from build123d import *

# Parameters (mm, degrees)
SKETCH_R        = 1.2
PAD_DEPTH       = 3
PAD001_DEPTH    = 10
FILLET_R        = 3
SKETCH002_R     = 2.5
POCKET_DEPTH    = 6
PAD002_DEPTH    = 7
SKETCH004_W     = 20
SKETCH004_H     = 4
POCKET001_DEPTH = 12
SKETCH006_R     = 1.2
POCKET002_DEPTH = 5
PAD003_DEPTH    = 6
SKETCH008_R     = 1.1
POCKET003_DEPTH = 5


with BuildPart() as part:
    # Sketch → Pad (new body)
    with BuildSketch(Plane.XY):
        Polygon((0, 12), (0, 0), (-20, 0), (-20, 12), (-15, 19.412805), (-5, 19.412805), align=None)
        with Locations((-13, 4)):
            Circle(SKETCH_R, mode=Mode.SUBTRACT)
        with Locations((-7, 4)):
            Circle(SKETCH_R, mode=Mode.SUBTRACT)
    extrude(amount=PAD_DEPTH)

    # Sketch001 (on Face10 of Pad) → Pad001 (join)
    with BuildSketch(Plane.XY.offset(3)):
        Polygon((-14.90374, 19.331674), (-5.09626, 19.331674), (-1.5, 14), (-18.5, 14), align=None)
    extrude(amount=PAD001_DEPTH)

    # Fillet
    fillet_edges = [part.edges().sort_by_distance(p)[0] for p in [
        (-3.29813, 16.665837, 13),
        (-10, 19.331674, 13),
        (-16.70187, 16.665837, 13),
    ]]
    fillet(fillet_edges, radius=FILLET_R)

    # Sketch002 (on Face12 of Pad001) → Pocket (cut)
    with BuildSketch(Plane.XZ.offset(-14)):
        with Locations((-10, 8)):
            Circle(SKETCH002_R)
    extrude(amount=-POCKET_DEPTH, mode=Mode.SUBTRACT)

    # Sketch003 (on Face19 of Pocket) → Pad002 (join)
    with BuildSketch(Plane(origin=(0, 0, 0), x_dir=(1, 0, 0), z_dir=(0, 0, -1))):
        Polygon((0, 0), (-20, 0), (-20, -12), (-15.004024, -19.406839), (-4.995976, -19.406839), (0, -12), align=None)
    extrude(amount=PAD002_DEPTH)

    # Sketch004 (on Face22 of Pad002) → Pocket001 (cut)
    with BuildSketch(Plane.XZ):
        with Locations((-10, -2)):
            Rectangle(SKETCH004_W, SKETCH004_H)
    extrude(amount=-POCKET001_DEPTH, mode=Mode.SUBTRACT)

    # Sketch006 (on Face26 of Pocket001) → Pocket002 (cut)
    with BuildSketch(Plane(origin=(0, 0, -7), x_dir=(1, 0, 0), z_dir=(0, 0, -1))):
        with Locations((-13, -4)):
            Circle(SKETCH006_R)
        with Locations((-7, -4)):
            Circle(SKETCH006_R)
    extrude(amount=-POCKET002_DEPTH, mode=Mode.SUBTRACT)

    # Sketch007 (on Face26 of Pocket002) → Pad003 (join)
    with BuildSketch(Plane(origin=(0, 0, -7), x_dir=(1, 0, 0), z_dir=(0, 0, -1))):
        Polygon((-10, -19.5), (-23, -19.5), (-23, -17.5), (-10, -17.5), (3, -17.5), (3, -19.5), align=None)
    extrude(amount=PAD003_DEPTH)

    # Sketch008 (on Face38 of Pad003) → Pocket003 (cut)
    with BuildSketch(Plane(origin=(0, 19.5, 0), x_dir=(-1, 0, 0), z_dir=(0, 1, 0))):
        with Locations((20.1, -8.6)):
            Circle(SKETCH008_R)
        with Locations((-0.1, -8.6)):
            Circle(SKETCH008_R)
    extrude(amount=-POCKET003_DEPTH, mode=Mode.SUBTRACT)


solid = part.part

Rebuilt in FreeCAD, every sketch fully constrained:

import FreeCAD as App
import Part
import Sketcher
from FreeCAD import Vector
Q = App.Units.Quantity


def edges_at(feature, points):
    """Names of the edges that pass closest to the given points."""
    edges = feature.Shape.Edges
    near = lambda p: min(range(len(edges)), key=lambda i: edges[i].distToShape(Part.Vertex(*p))[0])
    return sorted({f"Edge{near(p) + 1}" for p in points})

doc = App.newDocument("Part")
body = doc.addObject("PartDesign::Body", "Body")

sketch1 = body.newObject("Sketcher::SketchObject", "Sketch")
sketch1.AttachmentSupport = (doc.getObject("XY_Plane"), [""])
sketch1.MapMode = "FlatFace"
sketch1.addGeometry([
    Part.LineSegment(Vector(0, 0, 0), Vector(0, 12, 0)),
    Part.LineSegment(Vector(0, 12, 0), Vector(-5, 19.4, 0)),
    Part.LineSegment(Vector(-5, 19.4, 0), Vector(-15, 19.4, 0)),
    Part.LineSegment(Vector(-15, 19.4, 0), Vector(-20, 12, 0)),
    Part.LineSegment(Vector(-20, 12, 0), Vector(-20, 0, 0)),
    Part.LineSegment(Vector(-20, 0, 0), Vector(0, 0, 0)),
    Part.Circle(Vector(-7, 4, 0), Vector(0, 0, 1), 1.2),
    Part.Circle(Vector(-13, 4, 0), Vector(0, 0, 1), 1.2),
], False)
sketch1.addConstraint([
    Sketcher.Constraint("Coincident", 0, 2, 1, 1),
    Sketcher.Constraint("Coincident", 1, 2, 2, 1),
    Sketcher.Constraint("Coincident", 2, 2, 3, 1),
    Sketcher.Constraint("Coincident", 3, 2, 4, 1),
    Sketcher.Constraint("Coincident", 4, 2, 5, 1),
    Sketcher.Constraint("Coincident", 5, 2, 0, 1),
    Sketcher.Constraint("Vertical", 0),
    Sketcher.Constraint("Horizontal", 2),
    Sketcher.Constraint("Vertical", 4),
    Sketcher.Constraint("Horizontal", 5),
    Sketcher.Constraint("Coincident", 5, 2, -1, 1),
    Sketcher.Constraint("Equal", 6, 7),
    Sketcher.Constraint("Horizontal", 6, 3, 7, 3),
    Sketcher.Constraint("Horizontal", 0, 2, 3, 2),
    Sketcher.Constraint("Equal", 1, 3),
    Sketcher.Constraint("Diameter", 6, 2.4),
    Sketcher.Constraint("DistanceX", 2, 2, 2, 1, 10.0),
    Sketcher.Constraint("DistanceX", 5, 1, 5, 2, 20.0),
    Sketcher.Constraint("DistanceY", 0, 1, 0, 2, 12.0),
    Sketcher.Constraint("Angle", 1, Q("123.999999 deg")),
    Sketcher.Constraint("DistanceX", 6, 3, -1, 1, 7.0),
    Sketcher.Constraint("DistanceY", -1, 1, 6, 3, 4.0),
    Sketcher.Constraint("DistanceX", 7, 3, -1, 1, 13.0),
])
pad1 = body.newObject("PartDesign::Pad", "Pad")
pad1.Profile = sketch1
pad1.Length = 3

sketch2 = body.newObject("Sketcher::SketchObject", "Sketch001")
sketch2.AttachmentSupport = (doc.getObject("XY_Plane"), [""])
sketch2.MapMode = "FlatFace"
sketch2.AttachmentOffset = App.Placement(Vector(0, 0, 3), App.Rotation())
sketch2.addGeometry([
    Part.LineSegment(Vector(-5, 19, 0), Vector(-15, 19, 0)),
    Part.LineSegment(Vector(-15, 19, 0), Vector(-18, 14, 0)),
    Part.LineSegment(Vector(-18, 14, 0), Vector(-2, 14, 0)),
    Part.LineSegment(Vector(-2, 14, 0), Vector(-5, 19, 0)),
], False)
sketch2.addConstraint([
    Sketcher.Constraint("Coincident", 0, 2, 1, 1),
    Sketcher.Constraint("Coincident", 1, 2, 2, 1),
    Sketcher.Constraint("Coincident", 2, 2, 3, 1),
    Sketcher.Constraint("Coincident", 3, 2, 0, 1),
    Sketcher.Constraint("Horizontal", 0),
    Sketcher.Constraint("Horizontal", 2),
    Sketcher.Constraint("Equal", 1, 3),
    Sketcher.Constraint("DistanceX", 2, 1, 2, 2, 17.0),
    Sketcher.Constraint("Angle", 1, Q("-124.000004 deg")),
    Sketcher.Constraint("DistanceY", -1, 1, 1, 2, 14.0),
    Sketcher.Constraint("DistanceX", 1, 2, -1, 1, 18.5),
    Sketcher.Constraint("DistanceX", 0, 2, 0, 1, 9.80748),
])
pad2 = body.newObject("PartDesign::Pad", "Pad001")
pad2.Profile = sketch2
pad2.Length = 10
doc.recompute()

fillet = body.newObject("PartDesign::Fillet", "Fillet")
fillet.Base = (pad2, edges_at(pad2, [(-3.298, 16.666, 13), (-10, 19.332, 13), (-16.702, 16.666, 13)]))
fillet.Radius = 3

sketch3 = body.newObject("Sketcher::SketchObject", "Sketch002")
sketch3.AttachmentSupport = (doc.getObject("XZ_Plane"), [""])
sketch3.MapMode = "FlatFace"
sketch3.AttachmentOffset = App.Placement(Vector(0, 0, -14), App.Rotation())
sketch3.addGeometry(Part.Circle(Vector(-10, 8, 0), Vector(0, 0, 1), 2.5), False)
sketch3.addConstraint([
    Sketcher.Constraint("Diameter", 0, 5.0),
    Sketcher.Constraint("DistanceX", 0, 3, -1, 1, 10.0),
    Sketcher.Constraint("DistanceY", -1, 1, 0, 3, 8.0),
])
pocket1 = body.newObject("PartDesign::Pocket", "Pocket")
pocket1.Profile = sketch3
pocket1.Length = 6

sketch4 = body.newObject("Sketcher::SketchObject", "Sketch003")
sketch4.AttachmentSupport = (doc.getObject("XY_Plane"), [""])
sketch4.MapMode = "FlatFace"
sketch4.addGeometry([
    Part.LineSegment(Vector(0, 0, 0), Vector(-20, 0, 0)),
    Part.LineSegment(Vector(-20, 0, 0), Vector(-20, 12, 0)),
    Part.LineSegment(Vector(-20, 12, 0), Vector(-15, 19, 0)),
    Part.LineSegment(Vector(-15, 19, 0), Vector(-5, 19, 0)),
    Part.LineSegment(Vector(-5, 19, 0), Vector(0, 12, 0)),
    Part.LineSegment(Vector(0, 12, 0), Vector(0, 0, 0)),
], False)
sketch4.addConstraint([
    Sketcher.Constraint("Coincident", 0, 2, 1, 1),
    Sketcher.Constraint("Coincident", 1, 2, 2, 1),
    Sketcher.Constraint("Coincident", 2, 2, 3, 1),
    Sketcher.Constraint("Coincident", 3, 2, 4, 1),
    Sketcher.Constraint("Coincident", 4, 2, 5, 1),
    Sketcher.Constraint("Coincident", 5, 2, 0, 1),
    Sketcher.Constraint("Horizontal", 0),
    Sketcher.Constraint("Vertical", 1),
    Sketcher.Constraint("Horizontal", 3),
    Sketcher.Constraint("Vertical", 5),
    Sketcher.Constraint("Coincident", 5, 2, -1, 1),
    Sketcher.Constraint("Horizontal", 1, 2, 4, 2),
    Sketcher.Constraint("Equal", 2, 4),
    Sketcher.Constraint("DistanceX", 0, 2, 0, 1, 20.0),
    Sketcher.Constraint("DistanceY", 1, 1, 1, 2, 12.0),
    Sketcher.Constraint("Angle", 2, Q("56 deg")),
    Sketcher.Constraint("DistanceX", 3, 1, 3, 2, 10.008048),
])
pad3 = body.newObject("PartDesign::Pad", "Pad002")
pad3.Profile = sketch4
pad3.Length = 7
pad3.Reversed = True

sketch5 = body.newObject("Sketcher::SketchObject", "Sketch004")
sketch5.AttachmentSupport = (doc.getObject("XZ_Plane"), [""])
sketch5.MapMode = "FlatFace"
sketch5.addGeometry([
    Part.LineSegment(Vector(-20, 0, 0), Vector(-20, -4, 0)),
    Part.LineSegment(Vector(-20, -4, 0), Vector(0, -4, 0)),
    Part.LineSegment(Vector(0, -4, 0), Vector(0, 0, 0)),
    Part.LineSegment(Vector(0, 0, 0), Vector(-20, 0, 0)),
], False)
sketch5.addConstraint([
    Sketcher.Constraint("Coincident", 0, 2, 1, 1),
    Sketcher.Constraint("Coincident", 1, 2, 2, 1),
    Sketcher.Constraint("Coincident", 2, 2, 3, 1),
    Sketcher.Constraint("Coincident", 3, 2, 0, 1),
    Sketcher.Constraint("Vertical", 0),
    Sketcher.Constraint("Horizontal", 1),
    Sketcher.Constraint("Vertical", 2),
    Sketcher.Constraint("Horizontal", 3),
    Sketcher.Constraint("Coincident", 2, 2, -1, 1),
    Sketcher.Constraint("DistanceX", 1, 1, 1, 2, 20.0),
    Sketcher.Constraint("DistanceY", 0, 2, 0, 1, 4.0),
])
pocket2 = body.newObject("PartDesign::Pocket", "Pocket001")
pocket2.Profile = sketch5
pocket2.Length = 12

sketch6 = body.newObject("Sketcher::SketchObject", "Sketch005")
sketch6.AttachmentSupport = (doc.getObject("XY_Plane"), [""])
sketch6.MapMode = "FlatFace"
sketch6.AttachmentOffset = App.Placement(Vector(0, 0, -7), App.Rotation())
sketch6.addGeometry([
    Part.Circle(Vector(-13, 4, 0), Vector(0, 0, 1), 1.2),
    Part.Circle(Vector(-7, 4, 0), Vector(0, 0, 1), 1.2),
], False)
sketch6.addConstraint([
    Sketcher.Constraint("Equal", 0, 1),
    Sketcher.Constraint("Horizontal", 0, 3, 1, 3),
    Sketcher.Constraint("Diameter", 0, 2.4),
    Sketcher.Constraint("DistanceX", 0, 3, -1, 1, 13.0),
    Sketcher.Constraint("DistanceY", -1, 1, 0, 3, 4.0),
    Sketcher.Constraint("DistanceX", 1, 3, -1, 1, 7.0),
])
pocket3 = body.newObject("PartDesign::Pocket", "Pocket002")
pocket3.Profile = sketch6
pocket3.Length = 5
pocket3.Reversed = True

sketch7 = body.newObject("Sketcher::SketchObject", "Sketch006")
sketch7.AttachmentSupport = (doc.getObject("XY_Plane"), [""])
sketch7.MapMode = "FlatFace"
sketch7.AttachmentOffset = App.Placement(Vector(0, 0, -7), App.Rotation())
sketch7.addGeometry([
    Part.LineSegment(Vector(-23, 19.5, 0), Vector(3, 19.5, 0)),
    Part.LineSegment(Vector(3, 19.5, 0), Vector(3, 17.5, 0)),
    Part.LineSegment(Vector(3, 17.5, 0), Vector(-23, 17.5, 0)),
    Part.LineSegment(Vector(-23, 17.5, 0), Vector(-23, 19.5, 0)),
], False)
sketch7.addConstraint([
    Sketcher.Constraint("Coincident", 0, 2, 1, 1),
    Sketcher.Constraint("Coincident", 1, 2, 2, 1),
    Sketcher.Constraint("Coincident", 2, 2, 3, 1),
    Sketcher.Constraint("Coincident", 3, 2, 0, 1),
    Sketcher.Constraint("Horizontal", 0),
    Sketcher.Constraint("Vertical", 1),
    Sketcher.Constraint("Horizontal", 2),
    Sketcher.Constraint("Vertical", 3),
    Sketcher.Constraint("DistanceX", 0, 1, 0, 2, 26.0),
    Sketcher.Constraint("DistanceY", 1, 2, 1, 1, 2.0),
    Sketcher.Constraint("DistanceX", -1, 1, 0, 2, 3.0),
    Sketcher.Constraint("DistanceY", -1, 1, 0, 2, 19.5),
])
pad4 = body.newObject("PartDesign::Pad", "Pad003")
pad4.Profile = sketch7
pad4.Length = 6
pad4.Reversed = True

sketch8 = body.newObject("Sketcher::SketchObject", "Sketch007")
sketch8.AttachmentSupport = (doc.getObject("XZ_Plane"), [""])
sketch8.MapMode = "FlatFace"
sketch8.AttachmentOffset = App.Placement(Vector(0, 0, -19.5), App.Rotation())
sketch8.addGeometry([
    Part.Circle(Vector(-20.1, -8.6, 0), Vector(0, 0, 1), 1.1),
    Part.Circle(Vector(0.1, -8.6, 0), Vector(0, 0, 1), 1.1),
], False)
sketch8.addConstraint([
    Sketcher.Constraint("Equal", 0, 1),
    Sketcher.Constraint("Horizontal", 0, 3, 1, 3),
    Sketcher.Constraint("Diameter", 0, 2.2),
    Sketcher.Constraint("DistanceX", 0, 3, -1, 1, 20.1),
    Sketcher.Constraint("DistanceY", 0, 3, -1, 1, 8.6),
    Sketcher.Constraint("DistanceX", -1, 1, 1, 3, 0.1),
])
pocket4 = body.newObject("PartDesign::Pocket", "Pocket003")
pocket4.Profile = sketch8
pocket4.Length = 5
pocket4.Reversed = True

doc.recompute()
